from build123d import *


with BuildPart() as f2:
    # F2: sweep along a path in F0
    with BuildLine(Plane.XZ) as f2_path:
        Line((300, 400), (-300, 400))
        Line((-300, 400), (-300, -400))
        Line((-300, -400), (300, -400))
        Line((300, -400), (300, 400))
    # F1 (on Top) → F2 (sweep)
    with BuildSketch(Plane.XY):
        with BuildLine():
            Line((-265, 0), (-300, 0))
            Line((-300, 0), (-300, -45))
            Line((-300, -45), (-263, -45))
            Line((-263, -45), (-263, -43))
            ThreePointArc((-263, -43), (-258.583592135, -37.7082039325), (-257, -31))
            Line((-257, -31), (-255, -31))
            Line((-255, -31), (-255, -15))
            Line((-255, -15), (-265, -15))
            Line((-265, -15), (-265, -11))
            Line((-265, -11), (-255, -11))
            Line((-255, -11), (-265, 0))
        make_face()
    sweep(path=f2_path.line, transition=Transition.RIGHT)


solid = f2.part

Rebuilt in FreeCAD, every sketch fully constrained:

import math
import FreeCAD as App
import Part
import Sketcher
from FreeCAD import Vector

doc = App.newDocument("Part")
body = doc.addObject("PartDesign::Body", "Body")

sketch1 = body.newObject("Sketcher::SketchObject", "Sketch")
sketch1.AttachmentSupport = (doc.getObject("XY_Plane"), [""])
sketch1.MapMode = "FlatFace"
sketch1.addGeometry([
    Part.LineSegment(Vector(-265, 0, 0), Vector(-300, 0, 0)),
    Part.LineSegment(Vector(-300, 0, 0), Vector(-300, -45, 0)),
    Part.LineSegment(Vector(-300, -45, 0), Vector(-263, -45, 0)),
    Part.LineSegment(Vector(-263, -45, 0), Vector(-263, -43, 0)),
    Part.ArcOfCircle(Part.Circle(Vector(-272, -31, 0), Vector(0, 0, 1), 15), math.radians(-53), math.radians(0)),
    Part.LineSegment(Vector(-257, -31, 0), Vector(-255, -31, 0)),
    Part.LineSegment(Vector(-255, -31, 0), Vector(-255, -15, 0)),
    Part.LineSegment(Vector(-255, -15, 0), Vector(-265, -15, 0)),
    Part.LineSegment(Vector(-265, -15, 0), Vector(-265, -11, 0)),
    Part.LineSegment(Vector(-265, -11, 0), Vector(-255, -11, 0)),
    Part.LineSegment(Vector(-255, -11, 0), Vector(-265, 0, 0)),
], False)
sketch1.addConstraint([
    Sketcher.Constraint("Coincident", 0, 2, 1, 1),
    Sketcher.Constraint("Coincident", 1, 2, 2, 1),
    Sketcher.Constraint("Coincident", 2, 2, 3, 1),
    Sketcher.Constraint("Coincident", 3, 2, 4, 1),
    Sketcher.Constraint("Coincident", 4, 2, 5, 1),
    Sketcher.Constraint("Coincident", 5, 2, 6, 1),
    Sketcher.Constraint("Coincident", 6, 2, 7, 1),
    Sketcher.Constraint("Coincident", 7, 2, 8, 1),
    Sketcher.Constraint("Coincident", 8, 2, 9, 1),
    Sketcher.Constraint("Coincident", 9, 2, 10, 1),
    Sketcher.Constraint("Coincident", 10, 2, 0, 1),
    Sketcher.Constraint("Horizontal", 0),
    Sketcher.Constraint("Vertical", 1),
    Sketcher.Constraint("Horizontal", 2),
    Sketcher.Constraint("Vertical", 3),
    Sketcher.Constraint("Horizontal", 5),
    Sketcher.Constraint("Vertical", 6),
    Sketcher.Constraint("Horizontal", 7),
    Sketcher.Constraint("Vertical", 8),
    Sketcher.Constraint("Horizontal", 9),
    Sketcher.Constraint("PointOnObject", 0, 2, -1),
    Sketcher.Constraint("Vertical", 6, 2, 9, 2),
    Sketcher.Constraint("Vertical", 8, 2, 10, 2),
    Sketcher.Constraint("Equal", 5, 3),
    Sketcher.Constraint("Radius", 4, 15.0),
    Sketcher.Constraint("DistanceX", 0, 2, 0, 1, 35.0),
    Sketcher.Constraint("DistanceX", 2, 1, 2, 2, 37.0),
    Sketcher.Constraint("DistanceX", 5, 1, 5, 2, 2.0),
    Sketcher.Constraint("DistanceX", 7, 2, 7, 1, 10.0),
    Sketcher.Constraint("DistanceY", 1, 2, 1, 1, 45.0),
    Sketcher.Constraint("DistanceY", 6, 1, 6, 2, 16.0),
    Sketcher.Constraint("DistanceY", 8, 1, 8, 2, 4.0),
    Sketcher.Constraint("DistanceX", 4, 3, -1, 1, 272.0),
    Sketcher.Constraint("DistanceY", 4, 2, -1, 1, 31.0),
])

sketch2 = body.newObject("Sketcher::SketchObject", "Sketch001")
sketch2.AttachmentSupport = (doc.getObject("XZ_Plane"), [""])
sketch2.MapMode = "FlatFace"
sketch2.addGeometry([
    Part.LineSegment(Vector(300, 400, 0), Vector(-300, 400, 0)),
    Part.LineSegment(Vector(-300, 400, 0), Vector(-300, -400, 0)),
    Part.LineSegment(Vector(-300, -400, 0), Vector(300, -400, 0)),
    Part.LineSegment(Vector(300, -400, 0), Vector(300, 400, 0)),
], False)
sketch2.addConstraint([
    Sketcher.Constraint("Coincident", 0, 2, 1, 1),
    Sketcher.Constraint("Coincident", 1, 2, 2, 1),
    Sketcher.Constraint("Coincident", 2, 2, 3, 1),
    Sketcher.Constraint("Coincident", 3, 2, 0, 1),
    Sketcher.Constraint("Horizontal", 0),
    Sketcher.Constraint("Vertical", 1),
    Sketcher.Constraint("Horizontal", 2),
    Sketcher.Constraint("Vertical", 3),
    Sketcher.Constraint("Symmetric", 0, 2, 2, 2, -1, 1),
    Sketcher.Constraint("DistanceX", 0, 2, 0, 1, 600.0),
    Sketcher.Constraint("DistanceY", 1, 2, 1, 1, 800.0),
])
doc.recompute()

additivepipe = body.newObject("PartDesign::AdditivePipe", "AdditivePipe")
additivepipe.Profile = sketch1
additivepipe.Spine = (sketch2, ["Edge1", "Edge2", "Edge3", "Edge4"])
additivepipe.Transition = "Right corner"

doc.recompute()
